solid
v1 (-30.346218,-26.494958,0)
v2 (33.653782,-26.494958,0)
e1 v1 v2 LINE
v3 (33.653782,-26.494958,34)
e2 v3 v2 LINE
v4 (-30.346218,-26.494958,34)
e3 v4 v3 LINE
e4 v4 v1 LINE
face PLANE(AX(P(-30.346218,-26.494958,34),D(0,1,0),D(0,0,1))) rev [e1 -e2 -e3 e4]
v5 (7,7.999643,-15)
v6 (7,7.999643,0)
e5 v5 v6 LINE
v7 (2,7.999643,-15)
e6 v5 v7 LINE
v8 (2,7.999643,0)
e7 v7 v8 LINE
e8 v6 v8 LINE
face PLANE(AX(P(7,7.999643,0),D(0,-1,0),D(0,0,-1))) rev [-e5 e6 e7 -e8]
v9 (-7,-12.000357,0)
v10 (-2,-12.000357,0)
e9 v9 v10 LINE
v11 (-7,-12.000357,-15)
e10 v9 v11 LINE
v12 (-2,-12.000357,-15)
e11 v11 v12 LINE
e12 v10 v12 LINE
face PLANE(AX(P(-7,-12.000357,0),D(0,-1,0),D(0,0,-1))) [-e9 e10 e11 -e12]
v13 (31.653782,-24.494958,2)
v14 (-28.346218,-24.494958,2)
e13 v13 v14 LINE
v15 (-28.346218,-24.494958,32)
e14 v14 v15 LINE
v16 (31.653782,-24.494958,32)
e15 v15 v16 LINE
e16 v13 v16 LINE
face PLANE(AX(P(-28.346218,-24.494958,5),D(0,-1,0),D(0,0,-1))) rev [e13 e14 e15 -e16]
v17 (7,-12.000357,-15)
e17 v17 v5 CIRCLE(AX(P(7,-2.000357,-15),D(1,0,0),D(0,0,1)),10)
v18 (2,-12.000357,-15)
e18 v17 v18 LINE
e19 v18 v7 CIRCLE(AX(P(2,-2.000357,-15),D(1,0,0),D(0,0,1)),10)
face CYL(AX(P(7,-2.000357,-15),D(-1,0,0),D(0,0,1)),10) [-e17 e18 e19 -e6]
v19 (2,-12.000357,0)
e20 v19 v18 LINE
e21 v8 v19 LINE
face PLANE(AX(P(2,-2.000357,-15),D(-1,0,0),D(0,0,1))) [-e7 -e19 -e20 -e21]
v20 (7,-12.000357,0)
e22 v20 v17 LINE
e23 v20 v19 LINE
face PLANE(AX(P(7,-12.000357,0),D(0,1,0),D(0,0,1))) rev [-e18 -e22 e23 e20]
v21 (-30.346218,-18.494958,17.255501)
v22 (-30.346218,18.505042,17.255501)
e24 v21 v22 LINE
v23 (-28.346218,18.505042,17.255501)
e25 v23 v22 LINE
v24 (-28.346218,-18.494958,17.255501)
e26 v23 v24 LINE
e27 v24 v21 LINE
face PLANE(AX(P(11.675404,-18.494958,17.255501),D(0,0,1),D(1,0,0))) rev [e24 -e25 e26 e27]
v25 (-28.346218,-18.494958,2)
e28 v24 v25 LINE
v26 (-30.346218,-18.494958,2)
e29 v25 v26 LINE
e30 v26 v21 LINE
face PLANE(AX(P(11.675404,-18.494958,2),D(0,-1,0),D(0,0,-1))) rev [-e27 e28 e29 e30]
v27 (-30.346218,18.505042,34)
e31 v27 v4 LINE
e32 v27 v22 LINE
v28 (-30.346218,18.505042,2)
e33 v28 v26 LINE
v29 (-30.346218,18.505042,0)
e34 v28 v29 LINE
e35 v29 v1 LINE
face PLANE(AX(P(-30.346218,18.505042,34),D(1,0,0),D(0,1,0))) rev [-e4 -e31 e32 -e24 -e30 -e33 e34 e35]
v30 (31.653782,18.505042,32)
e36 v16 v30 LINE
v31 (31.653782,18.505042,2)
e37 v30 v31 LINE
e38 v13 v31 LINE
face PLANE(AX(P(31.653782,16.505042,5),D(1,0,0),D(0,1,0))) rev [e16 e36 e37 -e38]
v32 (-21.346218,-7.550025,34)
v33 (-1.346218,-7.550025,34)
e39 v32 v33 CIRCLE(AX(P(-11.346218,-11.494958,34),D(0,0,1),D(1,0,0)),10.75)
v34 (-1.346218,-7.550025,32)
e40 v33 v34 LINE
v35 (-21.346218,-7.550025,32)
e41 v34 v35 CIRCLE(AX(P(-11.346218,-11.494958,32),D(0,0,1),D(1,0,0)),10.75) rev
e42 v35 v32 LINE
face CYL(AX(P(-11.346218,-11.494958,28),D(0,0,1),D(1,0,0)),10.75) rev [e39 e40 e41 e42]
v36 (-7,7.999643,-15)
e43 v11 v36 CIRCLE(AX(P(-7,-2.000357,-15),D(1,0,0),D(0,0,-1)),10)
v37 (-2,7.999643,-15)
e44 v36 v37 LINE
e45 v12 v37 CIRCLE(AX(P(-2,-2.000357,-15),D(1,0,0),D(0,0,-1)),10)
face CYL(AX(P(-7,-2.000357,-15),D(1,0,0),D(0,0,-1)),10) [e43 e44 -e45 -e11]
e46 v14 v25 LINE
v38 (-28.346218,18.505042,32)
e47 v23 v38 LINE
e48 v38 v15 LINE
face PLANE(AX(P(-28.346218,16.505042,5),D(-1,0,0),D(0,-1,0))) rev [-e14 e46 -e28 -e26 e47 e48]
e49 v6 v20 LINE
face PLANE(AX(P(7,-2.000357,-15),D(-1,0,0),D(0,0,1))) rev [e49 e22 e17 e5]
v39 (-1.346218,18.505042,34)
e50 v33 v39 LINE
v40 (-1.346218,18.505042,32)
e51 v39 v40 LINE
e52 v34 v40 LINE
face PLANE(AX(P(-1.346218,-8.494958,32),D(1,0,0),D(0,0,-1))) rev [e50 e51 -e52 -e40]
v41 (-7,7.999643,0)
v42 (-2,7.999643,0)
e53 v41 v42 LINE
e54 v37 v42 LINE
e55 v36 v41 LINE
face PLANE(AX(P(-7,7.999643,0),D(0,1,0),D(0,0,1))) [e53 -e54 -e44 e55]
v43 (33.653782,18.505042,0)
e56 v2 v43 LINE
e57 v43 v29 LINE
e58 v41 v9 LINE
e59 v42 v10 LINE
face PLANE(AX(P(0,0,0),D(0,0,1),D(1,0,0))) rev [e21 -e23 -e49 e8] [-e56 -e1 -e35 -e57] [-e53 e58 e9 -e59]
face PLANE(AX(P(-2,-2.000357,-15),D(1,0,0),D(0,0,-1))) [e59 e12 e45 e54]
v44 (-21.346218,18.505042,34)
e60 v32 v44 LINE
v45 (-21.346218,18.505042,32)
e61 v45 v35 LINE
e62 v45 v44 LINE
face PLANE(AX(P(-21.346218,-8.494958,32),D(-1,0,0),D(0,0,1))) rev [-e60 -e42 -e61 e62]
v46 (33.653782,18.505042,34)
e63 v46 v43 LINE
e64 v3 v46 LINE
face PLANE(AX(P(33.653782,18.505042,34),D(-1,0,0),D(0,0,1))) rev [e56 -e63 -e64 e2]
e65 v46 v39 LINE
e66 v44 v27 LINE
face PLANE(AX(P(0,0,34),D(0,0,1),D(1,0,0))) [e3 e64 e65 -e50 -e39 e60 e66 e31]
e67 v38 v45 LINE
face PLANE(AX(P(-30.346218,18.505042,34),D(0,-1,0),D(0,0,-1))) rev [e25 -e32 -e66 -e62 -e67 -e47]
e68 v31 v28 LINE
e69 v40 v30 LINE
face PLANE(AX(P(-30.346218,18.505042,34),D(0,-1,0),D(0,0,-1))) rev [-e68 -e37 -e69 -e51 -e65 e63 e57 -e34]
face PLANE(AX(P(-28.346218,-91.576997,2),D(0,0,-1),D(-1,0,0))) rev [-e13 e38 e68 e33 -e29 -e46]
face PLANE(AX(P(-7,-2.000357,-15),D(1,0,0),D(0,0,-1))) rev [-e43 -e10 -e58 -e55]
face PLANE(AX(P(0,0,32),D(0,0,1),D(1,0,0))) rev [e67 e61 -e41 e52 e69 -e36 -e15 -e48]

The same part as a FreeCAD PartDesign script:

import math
import FreeCAD as App
import Part
import Sketcher
from FreeCAD import Vector
Q = App.Units.Quantity


def add_polygon(sketch, points):
    """Adds a closed chain of lines whose ends are joined by coincident constraints."""
    first, n = sketch.GeometryCount, len(points)
    for a, b in zip(points, points[1:] + points[:1]):
        sketch.addGeometry(Part.LineSegment(App.Vector(*a, 0), App.Vector(*b, 0)), False)
    for i in range(n):
        sketch.addConstraint(Sketcher.Constraint("Coincident", first + i, 2, first + (i + 1) % n, 1))

doc = App.newDocument("Part")
body = doc.addObject("PartDesign::Body", "Body")

# Sketch on XY plane
sketch1 = body.newObject("Sketcher::SketchObject", "Sketch")
sketch1.AttachmentSupport = (doc.getObject("XY_Plane"), [""])
sketch1.MapMode = "FlatFace"
add_polygon(sketch1, [(-30.346218, 18.505042), (-30.346218, -26.494958), (33.653782, -26.494958), (33.653782, 18.505042)])  # lines 0-3
sketch1.addConstraint([
    Sketcher.Constraint("Vertical", 0),
    Sketcher.Constraint("Horizontal", 1),
    Sketcher.Constraint("Vertical", 2),
    Sketcher.Constraint("Horizontal", 3),
    Sketcher.Constraint("DistanceX", 1, 1, 1, 2, Q("64 mm")),
    Sketcher.Constraint("DistanceY", 0, 2, 0, 1, Q("45 mm")),
    Sketcher.Constraint("DistanceX", 0, 2, -1, 1, Q("30.346218 mm")),
    Sketcher.Constraint("DistanceY", 0, 2, -1, 1, Q("26.494958 mm")),
])
pad1 = body.newObject("PartDesign::Pad", "Pad")
pad1.Profile = sketch1
pad1.Length = 34

# Sketch on XY plane
sketch2 = body.newObject("Sketcher::SketchObject", "Sketch001")
sketch2.AttachmentSupport = (doc.getObject("XY_Plane"), [""])
sketch2.MapMode = "FlatFace"
sketch2.AttachmentOffset = App.Placement(Vector(0, 0, 34), App.Rotation())
sketch2.addGeometry(Part.Circle(Vector(-11.346218, -11.494958, 0), Vector(0, 0, 1), 10.75), False)
sketch2.addConstraint([
    Sketcher.Constraint("Diameter", 0, Q("21.5 mm")),
    Sketcher.Constraint("DistanceX", 0, 3, -1, 1, Q("11.346218 mm")),
    Sketcher.Constraint("DistanceY", 0, 3, -1, 1, Q("11.494958 mm")),
])
pocket1 = body.newObject("PartDesign::Pocket", "Pocket")
pocket1.Profile = sketch2
pocket1.Length = 6

# Sketch on XY plane
sketch3 = body.newObject("Sketcher::SketchObject", "Sketch002")
sketch3.AttachmentSupport = (doc.getObject("XY_Plane"), [""])
sketch3.MapMode = "FlatFace"
sketch3.AttachmentOffset = App.Placement(Vector(0, 0, 32), App.Rotation())
add_polygon(sketch3, [(-28.346218, 16.505042), (-28.346218, -24.494958), (31.653782, -24.494958), (31.653782, 16.505042)])  # lines 0-3
sketch3.addConstraint([
    Sketcher.Constraint("Vertical", 0),
    Sketcher.Constraint("Horizontal", 1),
    Sketcher.Constraint("Vertical", 2),
    Sketcher.Constraint("Horizontal", 3),
    Sketcher.Constraint("DistanceX", 1, 1, 1, 2, Q("60 mm")),
    Sketcher.Constraint("DistanceY", 0, 2, 0, 1, Q("41 mm")),
    Sketcher.Constraint("DistanceX", 0, 2, -1, 1, Q("28.346218 mm")),
    Sketcher.Constraint("DistanceY", 0, 2, -1, 1, Q("24.494958 mm")),
])
pocket2 = body.newObject("PartDesign::Pocket", "Pocket001")
pocket2.Profile = sketch3
pocket2.Length = 27

# Sketch on XZ plane
sketch4 = body.newObject("Sketcher::SketchObject", "Sketch003")
sketch4.AttachmentSupport = (doc.getObject("XZ_Plane"), [""])
sketch4.MapMode = "FlatFace"
sketch4.AttachmentOffset = App.Placement(Vector(0, 0, -18.505042), App.Rotation())
add_polygon(sketch4, [(-28.346218, 2), (-28.346218, 32), (31.653782, 32), (31.653782, 2)])  # lines 0-3
sketch4.addConstraint([
    Sketcher.Constraint("Vertical", 0),
    Sketcher.Constraint("Horizontal", 1),
    Sketcher.Constraint("Vertical", 2),
    Sketcher.Constraint("Horizontal", 3),
    Sketcher.Constraint("DistanceX", 1, 1, 1, 2, Q("60 mm")),
    Sketcher.Constraint("DistanceY", 0, 1, 0, 2, Q("30 mm")),
    Sketcher.Constraint("DistanceY", -1, 1, 0, 2, Q("32 mm")),
    Sketcher.Constraint("DistanceX", 0, 2, -1, 1, Q("28.346218 mm")),
])
pocket3 = body.newObject("PartDesign::Pocket", "Pocket002")
pocket3.Profile = sketch4
pocket3.Length = 43
pocket3.Reversed = True

# Sketch on XZ plane
sketch5 = body.newObject("Sketcher::SketchObject", "Sketch004")
sketch5.AttachmentSupport = (doc.getObject("XZ_Plane"), [""])
sketch5.MapMode = "FlatFace"
sketch5.AttachmentOffset = App.Placement(Vector(0, 0, -18.505042), App.Rotation())
add_polygon(sketch5, [(-21.346218, 32), (-21.346218, 34), (-1.346218, 34), (-1.346218, 32)])  # lines 0-3
sketch5.addConstraint([
    Sketcher.Constraint("Vertical", 0),
    Sketcher.Constraint("Horizontal", 1),
    Sketcher.Constraint("Vertical", 2),
    Sketcher.Constraint("Horizontal", 3),
    Sketcher.Constraint("DistanceX", 1, 1, 1, 2, Q("20 mm")),
    Sketcher.Constraint("DistanceY", 0, 1, 0, 2, Q("2 mm")),
    Sketcher.Constraint("DistanceY", -1, 1, 0, 2, Q("34 mm")),
    Sketcher.Constraint("DistanceX", 0, 2, -1, 1, Q("21.346218 mm")),
])
pocket4 = body.newObject("PartDesign::Pocket", "Pocket003")
pocket4.Profile = sketch5
pocket4.Length = 27
pocket4.Reversed = True

# Sketch on YZ plane
sketch6 = body.newObject("Sketcher::SketchObject", "Sketch005")
sketch6.AttachmentSupport = (doc.getObject("YZ_Plane"), [""])
sketch6.MapMode = "FlatFace"
sketch6.AttachmentOffset = App.Placement(Vector(0, 0, 2), App.Rotation())
sketch6.addGeometry([
    Part.LineSegment(Vector(7.999643, -15, 0), Vector(7.999643, 0, 0)),
    Part.LineSegment(Vector(7.999643, 0, 0), Vector(-12.000357, 0, 0)),
    Part.LineSegment(Vector(-12.000357, 0, 0), Vector(-12.000357, -15, 0)),
    Part.ArcOfCircle(Part.Circle(Vector(-2.000357, -15, 0), Vector(0, 0, 1), 10), math.radians(180), math.radians(360)),
], False)
sketch6.addConstraint([
    Sketcher.Constraint("Coincident", 0, 2, 1, 1),
    Sketcher.Constraint("Coincident", 1, 2, 2, 1),
    Sketcher.Constraint("Tangent", 2, 2, 3, 1),
    Sketcher.Constraint("Tangent", 3, 2, 0, 1),
    Sketcher.Constraint("Vertical", 0),
    Sketcher.Constraint("Horizontal", 1),
    Sketcher.Constraint("Vertical", 2),
    Sketcher.Constraint("PointOnObject", 0, 2, -1),
    Sketcher.Constraint("Radius", 3, Q("10 mm")),
    Sketcher.Constraint("DistanceY", 0, 1, 0, 2, Q("15 mm")),
    Sketcher.Constraint("DistanceX", 3, 3, -1, 1, Q("2.000357 mm")),
])
pad2 = body.newObject("PartDesign::Pad", "Pad001")
pad2.Profile = sketch6
pad2.Length = 5

# Sketch on YZ plane
sketch7 = body.newObject("Sketcher::SketchObject", "Sketch006")
sketch7.AttachmentSupport = (doc.getObject("YZ_Plane"), [""])
sketch7.MapMode = "FlatFace"
sketch7.AttachmentOffset = App.Placement(Vector(0, 0, -7), App.Rotation())
sketch7.addGeometry([
    Part.LineSegment(Vector(7.999643, 0, 0), Vector(-12.000357, 0, 0)),
    Part.LineSegment(Vector(-12.000357, 0, 0), Vector(-12.000357, -15, 0)),
    Part.ArcOfCircle(Part.Circle(Vector(-2.000357, -15, 0), Vector(0, 0, 1), 10), math.radians(180), math.radians(360)),
    Part.LineSegment(Vector(7.999643, -15, 0), Vector(7.999643, 0, 0)),
], False)
sketch7.addConstraint([
    Sketcher.Constraint("Coincident", 0, 2, 1, 1),
    Sketcher.Constraint("Tangent", 1, 2, 2, 1),
    Sketcher.Constraint("Tangent", 2, 2, 3, 1),
    Sketcher.Constraint("Coincident", 3, 2, 0, 1),
    Sketcher.Constraint("Horizontal", 0),
    Sketcher.Constraint("Vertical", 1),
    Sketcher.Constraint("Vertical", 3),
    Sketcher.Constraint("PointOnObject", 0, 2, -1),
    Sketcher.Constraint("Radius", 2, Q("10 mm")),
    Sketcher.Constraint("DistanceY", 1, 2, 1, 1, Q("15 mm")),
    Sketcher.Constraint("DistanceX", 2, 3, -1, 1, Q("2.000357 mm")),
])
pad3 = body.newObject("PartDesign::Pad", "Pad002")
pad3.Profile = sketch7
pad3.Length = 5

# Sketch on YZ plane
sketch8 = body.newObject("Sketcher::SketchObject", "Sketch007")
sketch8.AttachmentSupport = (doc.getObject("YZ_Plane"), [""])
sketch8.MapMode = "FlatFace"
sketch8.AttachmentOffset = App.Placement(Vector(0, 0, -30.346218), App.Rotation())
add_polygon(sketch8, [(18.505042, 2), (-18.494958, 2), (-18.494958, 17.255501), (18.505042, 17.255501)])  # lines 0-3
sketch8.addConstraint([
    Sketcher.Constraint("Horizontal", 0),
    Sketcher.Constraint("Vertical", 1),
    Sketcher.Constraint("Horizontal", 2),
    Sketcher.Constraint("Vertical", 3),
    Sketcher.Constraint("DistanceX", 0, 2, 0, 1, Q("37 mm")),
    Sketcher.Constraint("DistanceY", -1, 1, 0, 2, Q("2 mm")),
    Sketcher.Constraint("DistanceY", 1, 1, 1, 2, Q("15.255501 mm")),
    Sketcher.Constraint("DistanceX", 0, 2, -1, 1, Q("18.494958 mm")),
])
pocket5 = body.newObject("PartDesign::Pocket", "Pocket004")
pocket5.Profile = sketch8
pocket5.Length = 2
pocket5.Reversed = True

doc.recompute()
